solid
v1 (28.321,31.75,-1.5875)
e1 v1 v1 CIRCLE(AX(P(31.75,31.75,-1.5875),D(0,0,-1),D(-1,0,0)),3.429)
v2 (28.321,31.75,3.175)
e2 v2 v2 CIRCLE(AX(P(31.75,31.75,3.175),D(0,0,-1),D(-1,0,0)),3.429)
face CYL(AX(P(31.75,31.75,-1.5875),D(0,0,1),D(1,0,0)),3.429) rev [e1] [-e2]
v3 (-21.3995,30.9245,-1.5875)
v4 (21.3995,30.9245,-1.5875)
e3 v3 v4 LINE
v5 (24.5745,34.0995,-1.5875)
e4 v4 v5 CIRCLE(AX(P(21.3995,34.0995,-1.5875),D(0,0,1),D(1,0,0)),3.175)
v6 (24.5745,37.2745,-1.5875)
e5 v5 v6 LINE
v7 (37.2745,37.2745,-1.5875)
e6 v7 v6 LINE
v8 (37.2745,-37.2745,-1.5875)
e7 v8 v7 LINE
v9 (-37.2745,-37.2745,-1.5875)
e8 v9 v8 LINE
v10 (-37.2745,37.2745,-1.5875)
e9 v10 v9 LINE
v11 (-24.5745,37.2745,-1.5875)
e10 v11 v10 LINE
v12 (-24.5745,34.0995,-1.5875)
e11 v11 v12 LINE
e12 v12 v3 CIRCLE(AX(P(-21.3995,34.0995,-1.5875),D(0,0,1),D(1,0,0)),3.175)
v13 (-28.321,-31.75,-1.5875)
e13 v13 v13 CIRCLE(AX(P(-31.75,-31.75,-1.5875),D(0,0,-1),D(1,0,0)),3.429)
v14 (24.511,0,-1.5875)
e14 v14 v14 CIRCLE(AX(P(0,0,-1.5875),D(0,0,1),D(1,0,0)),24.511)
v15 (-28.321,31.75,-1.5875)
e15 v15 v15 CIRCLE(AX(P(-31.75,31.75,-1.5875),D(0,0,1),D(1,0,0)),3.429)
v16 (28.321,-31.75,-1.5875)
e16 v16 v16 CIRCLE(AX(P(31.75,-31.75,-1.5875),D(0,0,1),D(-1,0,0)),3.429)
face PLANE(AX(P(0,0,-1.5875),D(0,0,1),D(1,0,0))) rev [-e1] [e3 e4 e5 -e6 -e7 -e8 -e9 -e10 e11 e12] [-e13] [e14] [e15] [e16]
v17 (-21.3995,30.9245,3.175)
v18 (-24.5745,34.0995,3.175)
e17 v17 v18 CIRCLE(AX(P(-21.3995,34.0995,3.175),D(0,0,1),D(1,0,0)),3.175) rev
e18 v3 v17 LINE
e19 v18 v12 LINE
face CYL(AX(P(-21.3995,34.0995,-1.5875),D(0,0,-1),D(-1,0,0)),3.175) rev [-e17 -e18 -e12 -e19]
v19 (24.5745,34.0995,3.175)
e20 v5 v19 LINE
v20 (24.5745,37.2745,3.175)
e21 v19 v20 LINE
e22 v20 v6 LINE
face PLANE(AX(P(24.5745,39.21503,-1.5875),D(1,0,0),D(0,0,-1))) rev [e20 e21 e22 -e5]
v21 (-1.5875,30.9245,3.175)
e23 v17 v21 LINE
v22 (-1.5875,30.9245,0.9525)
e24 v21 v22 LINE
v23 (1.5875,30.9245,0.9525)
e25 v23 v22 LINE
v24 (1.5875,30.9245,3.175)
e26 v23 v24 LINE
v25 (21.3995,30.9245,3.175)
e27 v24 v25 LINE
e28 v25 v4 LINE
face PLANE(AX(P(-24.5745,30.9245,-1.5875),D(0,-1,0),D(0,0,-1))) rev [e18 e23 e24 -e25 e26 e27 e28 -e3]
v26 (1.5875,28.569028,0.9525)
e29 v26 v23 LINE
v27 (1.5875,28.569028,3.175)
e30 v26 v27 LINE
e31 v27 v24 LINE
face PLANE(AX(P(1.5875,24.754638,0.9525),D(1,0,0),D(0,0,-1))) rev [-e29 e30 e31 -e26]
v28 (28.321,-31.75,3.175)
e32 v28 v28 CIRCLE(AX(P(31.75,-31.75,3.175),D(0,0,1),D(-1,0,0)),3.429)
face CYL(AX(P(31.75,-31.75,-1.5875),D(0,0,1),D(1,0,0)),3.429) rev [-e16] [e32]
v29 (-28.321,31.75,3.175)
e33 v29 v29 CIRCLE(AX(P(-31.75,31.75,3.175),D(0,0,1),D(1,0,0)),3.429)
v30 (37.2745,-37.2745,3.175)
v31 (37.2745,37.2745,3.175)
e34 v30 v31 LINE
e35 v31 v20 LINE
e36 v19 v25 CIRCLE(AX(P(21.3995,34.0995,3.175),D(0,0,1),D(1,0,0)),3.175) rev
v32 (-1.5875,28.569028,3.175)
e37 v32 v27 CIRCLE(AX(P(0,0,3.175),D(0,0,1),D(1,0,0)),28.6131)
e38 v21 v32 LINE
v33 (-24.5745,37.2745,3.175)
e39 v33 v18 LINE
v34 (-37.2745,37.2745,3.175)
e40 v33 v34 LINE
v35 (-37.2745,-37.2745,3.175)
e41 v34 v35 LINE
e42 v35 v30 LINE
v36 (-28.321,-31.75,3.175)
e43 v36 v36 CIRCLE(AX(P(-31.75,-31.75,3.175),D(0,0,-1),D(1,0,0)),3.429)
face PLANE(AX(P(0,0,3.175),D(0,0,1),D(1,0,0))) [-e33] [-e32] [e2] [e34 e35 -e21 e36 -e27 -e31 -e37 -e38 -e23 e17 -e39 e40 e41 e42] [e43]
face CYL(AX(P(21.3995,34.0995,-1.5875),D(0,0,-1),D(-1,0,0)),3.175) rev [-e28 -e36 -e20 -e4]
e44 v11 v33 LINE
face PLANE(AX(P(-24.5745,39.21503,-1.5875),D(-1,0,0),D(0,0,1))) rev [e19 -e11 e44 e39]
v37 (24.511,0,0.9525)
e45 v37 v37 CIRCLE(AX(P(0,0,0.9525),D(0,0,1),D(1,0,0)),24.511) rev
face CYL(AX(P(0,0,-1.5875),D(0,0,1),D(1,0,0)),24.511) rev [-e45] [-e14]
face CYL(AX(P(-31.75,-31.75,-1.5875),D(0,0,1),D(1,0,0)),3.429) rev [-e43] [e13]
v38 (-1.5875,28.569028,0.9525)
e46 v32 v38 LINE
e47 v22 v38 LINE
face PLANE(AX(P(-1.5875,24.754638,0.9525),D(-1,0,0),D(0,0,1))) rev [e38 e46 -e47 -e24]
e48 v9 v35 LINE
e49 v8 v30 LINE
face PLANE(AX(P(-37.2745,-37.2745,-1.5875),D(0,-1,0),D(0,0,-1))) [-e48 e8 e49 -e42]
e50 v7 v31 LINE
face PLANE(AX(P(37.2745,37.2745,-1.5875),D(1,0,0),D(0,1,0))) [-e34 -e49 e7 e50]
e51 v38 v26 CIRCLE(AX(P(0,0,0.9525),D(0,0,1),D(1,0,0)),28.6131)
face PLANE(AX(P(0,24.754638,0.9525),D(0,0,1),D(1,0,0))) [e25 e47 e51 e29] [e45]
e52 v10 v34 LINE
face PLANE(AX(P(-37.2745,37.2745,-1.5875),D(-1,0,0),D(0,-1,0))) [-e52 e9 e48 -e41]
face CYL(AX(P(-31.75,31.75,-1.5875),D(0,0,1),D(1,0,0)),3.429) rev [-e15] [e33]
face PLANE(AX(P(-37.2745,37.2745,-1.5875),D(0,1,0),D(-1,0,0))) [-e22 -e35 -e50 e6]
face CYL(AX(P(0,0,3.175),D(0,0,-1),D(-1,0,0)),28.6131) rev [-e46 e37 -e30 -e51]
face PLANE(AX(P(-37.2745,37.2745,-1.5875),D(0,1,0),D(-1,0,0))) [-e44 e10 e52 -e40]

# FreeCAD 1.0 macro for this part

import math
import FreeCAD as App
import Part
import Sketcher
from FreeCAD import Vector
Q = App.Units.Quantity


def edges_at(feature, points):
    """Names of the edges that pass closest to the given points."""
    edges = feature.Shape.Edges
    near = lambda p: min(range(len(edges)), key=lambda i: edges[i].distToShape(Part.Vertex(*p))[0])
    return sorted({f"Edge{near(p) + 1}" for p in points})

doc = App.newDocument("Part")
body = doc.addObject("PartDesign::Body", "Body")

# Sketch on XY plane
sketch1 = body.newObject("Sketcher::SketchObject", "Sketch")
sketch1.AttachmentSupport = (doc.getObject("XY_Plane"), [""])
sketch1.MapMode = "FlatFace"
sketch1.addGeometry([
    Part.LineSegment(Vector(-37.2745, 37.2745, 0), Vector(-37.2745, -37.2745, 0)),  # 0
    Part.LineSegment(Vector(-37.2745, -37.2745, 0), Vector(37.2745, -37.2745, 0)),  # 1
    Part.LineSegment(Vector(37.2745, -37.2745, 0), Vector(37.2745, 37.2745, 0)),  # 2
    Part.LineSegment(Vector(37.2745, 37.2745, 0), Vector(-37.2745, 37.2745, 0)),  # 3
    Part.Circle(Vector(0, 0, 0), Vector(0, 0, 1), 24.511),  # 4
], False)
sketch1.addConstraint([
    Sketcher.Constraint("Coincident", 0, 2, 1, 1),
    Sketcher.Constraint("Coincident", 1, 2, 2, 1),
    Sketcher.Constraint("Coincident", 2, 2, 3, 1),
    Sketcher.Constraint("Coincident", 3, 2, 0, 1),
    Sketcher.Constraint("Vertical", 0),
    Sketcher.Constraint("Horizontal", 1),
    Sketcher.Constraint("Vertical", 2),
    Sketcher.Constraint("Horizontal", 3),
    Sketcher.Constraint("Coincident", 4, 3, -1, 1),
    Sketcher.Constraint("Symmetric", 0, 2, 2, 2, -1, 1),
    Sketcher.Constraint("Equal", 3, 0),
    Sketcher.Constraint("Diameter", 4, Q("1.93 in")),
    Sketcher.Constraint("DistanceX", 1, 1, 1, 2, Q("2.935 in")),
])
pad1 = body.newObject("PartDesign::Pad", "Pad")
pad1.Profile = sketch1
pad1.Type = "TwoLengths"
pad1.Length = Q("0.0625 in")
pad1.Length2 = Q("0.0625 in")

# Sketch on XY plane
sketch2 = body.newObject("Sketcher::SketchObject", "Sketch001")
sketch2.AttachmentSupport = (doc.getObject("XY_Plane"), [""])
sketch2.MapMode = "FlatFace"
sketch2.AttachmentOffset = App.Placement(Vector(0, 0, 0.0625 * 25.4), App.Rotation())
sketch2.addGeometry([
    Part.LineSegment(Vector(-37.2745, 37.2745, 0), Vector(-37.2745, -37.2745, 0)),  # 0
    Part.LineSegment(Vector(-37.2745, -37.2745, 0), Vector(37.2745, -37.2745, 0)),  # 1
    Part.LineSegment(Vector(37.2745, -37.2745, 0), Vector(37.2745, 37.2745, 0)),  # 2
    Part.LineSegment(Vector(37.2745, 37.2745, 0), Vector(-37.2745, 37.2745, 0)),  # 3
    Part.Circle(Vector(0, 0, 0), Vector(0, 0, 1), 28.6131),  # 4
], False)
sketch2.addConstraint([
    Sketcher.Constraint("Coincident", 0, 2, 1, 1),
    Sketcher.Constraint("Coincident", 1, 2, 2, 1),
    Sketcher.Constraint("Coincident", 2, 2, 3, 1),
    Sketcher.Constraint("Coincident", 3, 2, 0, 1),
    Sketcher.Constraint("Vertical", 0),
    Sketcher.Constraint("Horizontal", 1),
    Sketcher.Constraint("Vertical", 2),
    Sketcher.Constraint("Horizontal", 3),
    Sketcher.Constraint("Coincident", 4, 3, -1, 1),
    Sketcher.Constraint("Symmetric", 0, 2, 2, 2, -1, 1),
    Sketcher.Constraint("Equal", 3, 0),
    Sketcher.Constraint("Diameter", 4, Q("2.253 in")),
    Sketcher.Constraint("DistanceX", 1, 1, 1, 2, Q("2.935 in")),
])
pad2 = body.newObject("PartDesign::Pad", "Pad001")
pad2.Profile = sketch2
pad2.Length = Q("0.0625 in")

# Sketch on XY plane
sketch3 = body.newObject("Sketcher::SketchObject", "Sketch002")
sketch3.AttachmentSupport = (doc.getObject("XY_Plane"), [""])
sketch3.MapMode = "FlatFace"
sketch3.AttachmentOffset = App.Placement(Vector(0, 0, -2.5875), App.Rotation())
sketch3.addGeometry(Part.Circle(Vector(-31.75, 31.75, 0), Vector(0, 0, 1), 3.429), False)
sketch3.addConstraint([
    Sketcher.Constraint("Diameter", 0, Q("0.27 in")),
    Sketcher.Constraint("DistanceX", 0, 3, -1, 1, Q("1.25 in")),
    Sketcher.Constraint("DistanceY", -1, 1, 0, 3, Q("1.25 in")),
])
pocket1 = body.newObject("PartDesign::Pocket", "Pocket")
pocket1.Profile = sketch3
pocket1.Length = 6.7625
pocket1.Reversed = True
doc.recompute()

mirrored = body.newObject("PartDesign::Mirrored", "Mirrored")
mirrored.Originals = [pocket1]
mirrored.MirrorPlane = (doc.getObject("YZ_Plane"), [""])
body.Tip = mirrored
doc.recompute()

mirrored2 = body.newObject("PartDesign::Mirrored", "Mirrored001")
mirrored2.Originals = [pocket1]
mirrored2.MirrorPlane = (doc.getObject("XZ_Plane"), [""])
body.Tip = mirrored2

# Sketch on XY plane
sketch4 = body.newObject("Sketcher::SketchObject", "Sketch003")
sketch4.AttachmentSupport = (doc.getObject("XY_Plane"), [""])
sketch4.MapMode = "FlatFace"
sketch4.AttachmentOffset = App.Placement(Vector(0, 0, -2.5875), App.Rotation())
sketch4.addGeometry(Part.Circle(Vector(31.75, -31.75, 0), Vector(0, 0, 1), 3.429), False)
sketch4.addConstraint([
    Sketcher.Constraint("Diameter", 0, Q("0.27 in")),
    Sketcher.Constraint("DistanceX", -1, 1, 0, 3, Q("1.25 in")),
    Sketcher.Constraint("DistanceY", 0, 3, -1, 1, Q("1.25 in")),
])
pocket2 = body.newObject("PartDesign::Pocket", "Pocket001")
pocket2.Profile = sketch4
pocket2.Length = 6.7625
pocket2.Reversed = True

# Sketch on XY plane
sketch5 = body.newObject("Sketcher::SketchObject", "Sketch004")
sketch5.AttachmentSupport = (doc.getObject("XY_Plane"), [""])
sketch5.MapMode = "FlatFace"
sketch5.AttachmentOffset = App.Placement(Vector(0, 0, 0.0625 * 25.4), App.Rotation())
sketch5.addGeometry([
    Part.LineSegment(Vector(-24.5745, 39.21503, 0), Vector(-24.5745, 30.9245, 0)),
    Part.LineSegment(Vector(-24.5745, 30.9245, 0), Vector(24.5745, 30.9245, 0)),
    Part.LineSegment(Vector(24.5745, 30.9245, 0), Vector(24.5745, 39.21503, 0)),
    Part.LineSegment(Vector(24.5745, 39.21503, 0), Vector(-24.5745, 39.21503, 0)),
], False)
sketch5.addConstraint([
    Sketcher.Constraint("Coincident", 0, 2, 1, 1),
    Sketcher.Constraint("Coincident", 1, 2, 2, 1),
    Sketcher.Constraint("Coincident", 2, 2, 3, 1),
    Sketcher.Constraint("Coincident", 3, 2, 0, 1),
    Sketcher.Constraint("Vertical", 0),
    Sketcher.Constraint("Horizontal", 1),
    Sketcher.Constraint("Vertical", 2),
    Sketcher.Constraint("Horizontal", 3),
    Sketcher.Constraint("DistanceX", 1, 1, 1, 2, Q("1.935 in")),
    Sketcher.Constraint("DistanceX", 0, 2, -1, 1, Q("0.9675 in")),
    Sketcher.Constraint("DistanceY", -1, 1, 0, 2, Q("1.2175 in")),
    Sketcher.Constraint("DistanceY", 0, 2, 0, 1, Q("8.29053 mm")),
])
pocket3 = body.newObject("PartDesign::Pocket", "Pocket002")
pocket3.Profile = sketch5
pocket3.Type = "ThroughAll"
pocket3.Midplane = True
doc.recompute()

fillet = body.newObject("PartDesign::Fillet", "Fillet")
fillet.Base = (pocket3, edges_at(pocket3, [(-24.575, 30.924, 0.794), (24.575, 30.924, 0.794)]))
fillet.Radius = Q("0.125 in")

# Sketch on XY plane
sketch6 = body.newObject("Sketcher::SketchObject", "Sketch005")
sketch6.AttachmentSupport = (doc.getObject("XY_Plane"), [""])
sketch6.MapMode = "FlatFace"
sketch6.AttachmentOffset = App.Placement(Vector(0, 0, 0.0625 * 25.4), App.Rotation())
sketch6.addGeometry([
    Part.LineSegment(Vector(-1.5875, 33.858616, 0), Vector(-1.5875, 24.754638, 0)),
    Part.ArcOfCircle(Part.Circle(Vector(0, 24.754638, 0), Vector(0, 0, 1), 1.5875), math.radians(180), math.radians(360)),
    Part.LineSegment(Vector(1.5875, 24.754638, 0), Vector(1.5875, 33.858616, 0)),
    Part.ArcOfCircle(Part.Circle(Vector(0, 33.858616, 0), Vector(0, 0, 1), 1.5875), math.radians(0), math.radians(180)),
], False)
sketch6.addConstraint([
    Sketcher.Constraint("Tangent", 0, 2, 1, 1),
    Sketcher.Constraint("Tangent", 1, 2, 2, 1),
    Sketcher.Constraint("Tangent", 2, 2, 3, 1),
    Sketcher.Constraint("Tangent", 3, 2, 0, 1),
    Sketcher.Constraint("Vertical", 0),
    Sketcher.Constraint("Vertical", 2),
    Sketcher.Constraint("PointOnObject", 1, 3, -2),
    Sketcher.Constraint("Radius", 1, Q("0.0625 in")),
    Sketcher.Constraint("DistanceY", 0, 2, 0, 1, Q("9.103978 mm")),
    Sketcher.Constraint("DistanceY", -1, 1, 1, 3, Q("24.754638 mm")),
])
pocket4 = body.newObject("PartDesign::Pocket", "Pocket003")
pocket4.Profile = sketch6
pocket4.Type = "UpToFirst"
pocket4.Reversed = True

# Sketch on XY plane
sketch7 = body.newObject("Sketcher::SketchObject", "Sketch006")
sketch7.AttachmentSupport = (doc.getObject("XY_Plane"), [""])
sketch7.MapMode = "FlatFace"
sketch7.AttachmentOffset = App.Placement(Vector(0, 0, 0.0625 * 25.4), App.Rotation())
sketch7.addGeometry([
    Part.LineSegment(Vector(-1.5875, 33.858616, 0), Vector(-1.5875, 24.754638, 0)),
    Part.ArcOfCircle(Part.Circle(Vector(0, 24.754638, 0), Vector(0, 0, 1), 1.5875), math.radians(180), math.radians(360)),
    Part.LineSegment(Vector(1.5875, 24.754638, 0), Vector(1.5875, 33.858616, 0)),
    Part.ArcOfCircle(Part.Circle(Vector(0, 33.858616, 0), Vector(0, 0, 1), 1.5875), math.radians(0), math.radians(180)),
], False)
sketch7.addConstraint([
    Sketcher.Constraint("Tangent", 0, 2, 1, 1),
    Sketcher.Constraint("Tangent", 1, 2, 2, 1),
    Sketcher.Constraint("Tangent", 2, 2, 3, 1),
    Sketcher.Constraint("Tangent", 3, 2, 0, 1),
    Sketcher.Constraint("Vertical", 0),
    Sketcher.Constraint("Vertical", 2),
    Sketcher.Constraint("PointOnObject", 1, 3, -2),
    Sketcher.Constraint("Radius", 1, Q("0.0625 in")),
    Sketcher.Constraint("DistanceY", 0, 2, 0, 1, Q("9.103978 mm")),
    Sketcher.Constraint("DistanceY", -1, 1, 1, 3, Q("24.754638 mm")),
])
pocket5 = body.newObject("PartDesign::Pocket", "Pocket004")
pocket5.Profile = sketch7
pocket5.Length = Q("0.025 in")

# Sketch on XY plane
sketch8 = body.newObject("Sketcher::SketchObject", "Sketch007")
sketch8.AttachmentSupport = (doc.getObject("XY_Plane"), [""])
sketch8.MapMode = "FlatFace"
sketch8.AttachmentOffset = App.Placement(Vector(0, 0, 0.0625 * 25.4), App.Rotation())
sketch8.addGeometry(Part.Circle(Vector(0, 0, 0), Vector(0, 0, 1), 28.6131), False)
sketch8.addConstraint([
    Sketcher.Constraint("Coincident", 0, 3, -1, 1),
    Sketcher.Constraint("Diameter", 0, Q("2.253 in")),
])
pocket6 = body.newObject("PartDesign::Pocket", "Pocket005")
pocket6.Profile = sketch8
pocket6.Length = Q("0.025 in")

doc.recompute()
